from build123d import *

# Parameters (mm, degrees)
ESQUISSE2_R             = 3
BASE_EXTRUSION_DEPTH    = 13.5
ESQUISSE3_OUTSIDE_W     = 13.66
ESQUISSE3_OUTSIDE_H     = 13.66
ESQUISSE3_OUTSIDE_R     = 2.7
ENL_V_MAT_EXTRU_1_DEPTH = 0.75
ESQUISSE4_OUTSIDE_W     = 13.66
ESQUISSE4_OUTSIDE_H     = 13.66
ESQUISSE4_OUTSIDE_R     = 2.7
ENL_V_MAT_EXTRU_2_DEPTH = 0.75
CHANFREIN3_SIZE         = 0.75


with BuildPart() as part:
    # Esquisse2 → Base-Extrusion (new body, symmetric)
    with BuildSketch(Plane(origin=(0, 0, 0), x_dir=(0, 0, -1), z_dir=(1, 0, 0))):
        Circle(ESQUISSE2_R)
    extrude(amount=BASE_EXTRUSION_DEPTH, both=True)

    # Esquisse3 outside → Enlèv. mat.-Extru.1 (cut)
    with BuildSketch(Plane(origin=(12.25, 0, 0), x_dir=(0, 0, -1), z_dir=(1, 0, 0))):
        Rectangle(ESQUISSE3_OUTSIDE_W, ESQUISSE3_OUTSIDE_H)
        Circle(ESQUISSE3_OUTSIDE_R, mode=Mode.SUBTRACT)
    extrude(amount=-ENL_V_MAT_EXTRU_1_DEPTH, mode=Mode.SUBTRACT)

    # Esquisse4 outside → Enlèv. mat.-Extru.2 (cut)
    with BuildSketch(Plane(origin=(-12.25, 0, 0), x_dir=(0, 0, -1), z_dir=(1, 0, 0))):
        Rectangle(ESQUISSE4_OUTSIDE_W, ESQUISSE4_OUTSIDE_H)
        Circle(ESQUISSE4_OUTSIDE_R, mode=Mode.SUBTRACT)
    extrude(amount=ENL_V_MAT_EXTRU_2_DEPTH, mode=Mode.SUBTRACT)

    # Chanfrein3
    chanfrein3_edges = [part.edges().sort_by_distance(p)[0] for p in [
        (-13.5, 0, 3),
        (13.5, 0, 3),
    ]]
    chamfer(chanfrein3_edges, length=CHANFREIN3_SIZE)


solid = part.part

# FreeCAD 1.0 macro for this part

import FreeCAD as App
import Part
import Sketcher
from FreeCAD import Vector


def edges_at(feature, points):
    """Names of the edges that pass closest to the given points."""
    edges = feature.Shape.Edges
    near = lambda p: min(range(len(edges)), key=lambda i: edges[i].distToShape(Part.Vertex(*p))[0])
    return sorted({f"Edge{near(p) + 1}" for p in points})


def add_polygon(sketch, points):
    """Adds a closed chain of lines whose ends are joined by coincident constraints."""
    first, n = sketch.GeometryCount, len(points)
    for a, b in zip(points, points[1:] + points[:1]):
        sketch.addGeometry(Part.LineSegment(App.Vector(*a, 0), App.Vector(*b, 0)), False)
    for i in range(n):
        sketch.addConstraint(Sketcher.Constraint("Coincident", first + i, 2, first + (i + 1) % n, 1))

doc = App.newDocument("Part")
body = doc.addObject("PartDesign::Body", "Body")

# Sketch on YZ plane
sketch1 = doc.addObject("Sketcher::SketchObject", "Sketch")
body.addObject(sketch1)
sketch1.AttachmentSupport = (doc.YZ_Plane, [""])
sketch1.MapMode = "FlatFace"
sketch1.addGeometry(Part.Circle(Vector(0, 0, 0), Vector(0, 0, 1), 3), False)
sketch1.addConstraint([
    Sketcher.Constraint("Coincident", 0, 3, -1, 1),
    Sketcher.Constraint("Diameter", 0, 6.0),
])
pad1 = doc.addObject("PartDesign::Pad", "Pad")
body.addObject(pad1)
pad1.Profile = sketch1
pad1.Length = 27
pad1.Midplane = True

# Sketch on YZ plane
sketch2 = doc.addObject("Sketcher::SketchObject", "Sketch001")
body.addObject(sketch2)
sketch2.AttachmentSupport = (doc.YZ_Plane, [""])
sketch2.MapMode = "FlatFace"
sketch2.AttachmentOffset = App.Placement(Vector(0, 0, 12.25), App.Rotation())
add_polygon(sketch2, [(6.8, 6.8), (-6.8, 6.8), (-6.8, -6.8), (6.8, -6.8)])  # lines 0-3
sketch2.addGeometry(Part.Circle(Vector(0, 0, 0), Vector(0, 0, 1), 2.7), False)  # 4
sketch2.addConstraint([
    Sketcher.Constraint("Horizontal", 0),
    Sketcher.Constraint("Vertical", 1),
    Sketcher.Constraint("Horizontal", 2),
    Sketcher.Constraint("Vertical", 3),
    Sketcher.Constraint("Coincident", 4, 3, -1, 1),
    Sketcher.Constraint("Symmetric", 0, 2, 2, 2, -1, 1),
    Sketcher.Constraint("Equal", 2, 1),
    Sketcher.Constraint("Diameter", 4, 5.4),
    Sketcher.Constraint("DistanceX", 0, 2, 0, 1, 13.66),
])
pocket1 = doc.addObject("PartDesign::Pocket", "Pocket")
body.addObject(pocket1)
pocket1.Profile = sketch2
pocket1.Length = 0.75

# Sketch on YZ plane
sketch3 = doc.addObject("Sketcher::SketchObject", "Sketch002")
body.addObject(sketch3)
sketch3.AttachmentSupport = (doc.YZ_Plane, [""])
sketch3.MapMode = "FlatFace"
sketch3.AttachmentOffset = App.Placement(Vector(0, 0, -12.25), App.Rotation())
add_polygon(sketch3, [(6.8, 6.8), (-6.8, 6.8), (-6.8, -6.8), (6.8, -6.8)])  # lines 0-3
sketch3.addGeometry(Part.Circle(Vector(0, 0, 0), Vector(0, 0, 1), 2.7), False)  # 4
sketch3.addConstraint([
    Sketcher.Constraint("Horizontal", 0),
    Sketcher.Constraint("Vertical", 1),
    Sketcher.Constraint("Horizontal", 2),
    Sketcher.Constraint("Vertical", 3),
    Sketcher.Constraint("Coincident", 4, 3, -1, 1),
    Sketcher.Constraint("Symmetric", 0, 2, 2, 2, -1, 1),
    Sketcher.Constraint("Equal", 2, 1),
    Sketcher.Constraint("Diameter", 4, 5.4),
    Sketcher.Constraint("DistanceX", 0, 2, 0, 1, 13.66),
])
pocket2 = doc.addObject("PartDesign::Pocket", "Pocket001")
body.addObject(pocket2)
pocket2.Profile = sketch3
pocket2.Length = 0.75
pocket2.Reversed = True
doc.recompute()

chamfer = doc.addObject("PartDesign::Chamfer", "Chamfer")
body.addObject(chamfer)
chamfer.Base = (pocket2, edges_at(pocket2, [(-13.5, 0, 3), (13.5, 0, 3)]))
chamfer.Size = 0.75

doc.recompute()
